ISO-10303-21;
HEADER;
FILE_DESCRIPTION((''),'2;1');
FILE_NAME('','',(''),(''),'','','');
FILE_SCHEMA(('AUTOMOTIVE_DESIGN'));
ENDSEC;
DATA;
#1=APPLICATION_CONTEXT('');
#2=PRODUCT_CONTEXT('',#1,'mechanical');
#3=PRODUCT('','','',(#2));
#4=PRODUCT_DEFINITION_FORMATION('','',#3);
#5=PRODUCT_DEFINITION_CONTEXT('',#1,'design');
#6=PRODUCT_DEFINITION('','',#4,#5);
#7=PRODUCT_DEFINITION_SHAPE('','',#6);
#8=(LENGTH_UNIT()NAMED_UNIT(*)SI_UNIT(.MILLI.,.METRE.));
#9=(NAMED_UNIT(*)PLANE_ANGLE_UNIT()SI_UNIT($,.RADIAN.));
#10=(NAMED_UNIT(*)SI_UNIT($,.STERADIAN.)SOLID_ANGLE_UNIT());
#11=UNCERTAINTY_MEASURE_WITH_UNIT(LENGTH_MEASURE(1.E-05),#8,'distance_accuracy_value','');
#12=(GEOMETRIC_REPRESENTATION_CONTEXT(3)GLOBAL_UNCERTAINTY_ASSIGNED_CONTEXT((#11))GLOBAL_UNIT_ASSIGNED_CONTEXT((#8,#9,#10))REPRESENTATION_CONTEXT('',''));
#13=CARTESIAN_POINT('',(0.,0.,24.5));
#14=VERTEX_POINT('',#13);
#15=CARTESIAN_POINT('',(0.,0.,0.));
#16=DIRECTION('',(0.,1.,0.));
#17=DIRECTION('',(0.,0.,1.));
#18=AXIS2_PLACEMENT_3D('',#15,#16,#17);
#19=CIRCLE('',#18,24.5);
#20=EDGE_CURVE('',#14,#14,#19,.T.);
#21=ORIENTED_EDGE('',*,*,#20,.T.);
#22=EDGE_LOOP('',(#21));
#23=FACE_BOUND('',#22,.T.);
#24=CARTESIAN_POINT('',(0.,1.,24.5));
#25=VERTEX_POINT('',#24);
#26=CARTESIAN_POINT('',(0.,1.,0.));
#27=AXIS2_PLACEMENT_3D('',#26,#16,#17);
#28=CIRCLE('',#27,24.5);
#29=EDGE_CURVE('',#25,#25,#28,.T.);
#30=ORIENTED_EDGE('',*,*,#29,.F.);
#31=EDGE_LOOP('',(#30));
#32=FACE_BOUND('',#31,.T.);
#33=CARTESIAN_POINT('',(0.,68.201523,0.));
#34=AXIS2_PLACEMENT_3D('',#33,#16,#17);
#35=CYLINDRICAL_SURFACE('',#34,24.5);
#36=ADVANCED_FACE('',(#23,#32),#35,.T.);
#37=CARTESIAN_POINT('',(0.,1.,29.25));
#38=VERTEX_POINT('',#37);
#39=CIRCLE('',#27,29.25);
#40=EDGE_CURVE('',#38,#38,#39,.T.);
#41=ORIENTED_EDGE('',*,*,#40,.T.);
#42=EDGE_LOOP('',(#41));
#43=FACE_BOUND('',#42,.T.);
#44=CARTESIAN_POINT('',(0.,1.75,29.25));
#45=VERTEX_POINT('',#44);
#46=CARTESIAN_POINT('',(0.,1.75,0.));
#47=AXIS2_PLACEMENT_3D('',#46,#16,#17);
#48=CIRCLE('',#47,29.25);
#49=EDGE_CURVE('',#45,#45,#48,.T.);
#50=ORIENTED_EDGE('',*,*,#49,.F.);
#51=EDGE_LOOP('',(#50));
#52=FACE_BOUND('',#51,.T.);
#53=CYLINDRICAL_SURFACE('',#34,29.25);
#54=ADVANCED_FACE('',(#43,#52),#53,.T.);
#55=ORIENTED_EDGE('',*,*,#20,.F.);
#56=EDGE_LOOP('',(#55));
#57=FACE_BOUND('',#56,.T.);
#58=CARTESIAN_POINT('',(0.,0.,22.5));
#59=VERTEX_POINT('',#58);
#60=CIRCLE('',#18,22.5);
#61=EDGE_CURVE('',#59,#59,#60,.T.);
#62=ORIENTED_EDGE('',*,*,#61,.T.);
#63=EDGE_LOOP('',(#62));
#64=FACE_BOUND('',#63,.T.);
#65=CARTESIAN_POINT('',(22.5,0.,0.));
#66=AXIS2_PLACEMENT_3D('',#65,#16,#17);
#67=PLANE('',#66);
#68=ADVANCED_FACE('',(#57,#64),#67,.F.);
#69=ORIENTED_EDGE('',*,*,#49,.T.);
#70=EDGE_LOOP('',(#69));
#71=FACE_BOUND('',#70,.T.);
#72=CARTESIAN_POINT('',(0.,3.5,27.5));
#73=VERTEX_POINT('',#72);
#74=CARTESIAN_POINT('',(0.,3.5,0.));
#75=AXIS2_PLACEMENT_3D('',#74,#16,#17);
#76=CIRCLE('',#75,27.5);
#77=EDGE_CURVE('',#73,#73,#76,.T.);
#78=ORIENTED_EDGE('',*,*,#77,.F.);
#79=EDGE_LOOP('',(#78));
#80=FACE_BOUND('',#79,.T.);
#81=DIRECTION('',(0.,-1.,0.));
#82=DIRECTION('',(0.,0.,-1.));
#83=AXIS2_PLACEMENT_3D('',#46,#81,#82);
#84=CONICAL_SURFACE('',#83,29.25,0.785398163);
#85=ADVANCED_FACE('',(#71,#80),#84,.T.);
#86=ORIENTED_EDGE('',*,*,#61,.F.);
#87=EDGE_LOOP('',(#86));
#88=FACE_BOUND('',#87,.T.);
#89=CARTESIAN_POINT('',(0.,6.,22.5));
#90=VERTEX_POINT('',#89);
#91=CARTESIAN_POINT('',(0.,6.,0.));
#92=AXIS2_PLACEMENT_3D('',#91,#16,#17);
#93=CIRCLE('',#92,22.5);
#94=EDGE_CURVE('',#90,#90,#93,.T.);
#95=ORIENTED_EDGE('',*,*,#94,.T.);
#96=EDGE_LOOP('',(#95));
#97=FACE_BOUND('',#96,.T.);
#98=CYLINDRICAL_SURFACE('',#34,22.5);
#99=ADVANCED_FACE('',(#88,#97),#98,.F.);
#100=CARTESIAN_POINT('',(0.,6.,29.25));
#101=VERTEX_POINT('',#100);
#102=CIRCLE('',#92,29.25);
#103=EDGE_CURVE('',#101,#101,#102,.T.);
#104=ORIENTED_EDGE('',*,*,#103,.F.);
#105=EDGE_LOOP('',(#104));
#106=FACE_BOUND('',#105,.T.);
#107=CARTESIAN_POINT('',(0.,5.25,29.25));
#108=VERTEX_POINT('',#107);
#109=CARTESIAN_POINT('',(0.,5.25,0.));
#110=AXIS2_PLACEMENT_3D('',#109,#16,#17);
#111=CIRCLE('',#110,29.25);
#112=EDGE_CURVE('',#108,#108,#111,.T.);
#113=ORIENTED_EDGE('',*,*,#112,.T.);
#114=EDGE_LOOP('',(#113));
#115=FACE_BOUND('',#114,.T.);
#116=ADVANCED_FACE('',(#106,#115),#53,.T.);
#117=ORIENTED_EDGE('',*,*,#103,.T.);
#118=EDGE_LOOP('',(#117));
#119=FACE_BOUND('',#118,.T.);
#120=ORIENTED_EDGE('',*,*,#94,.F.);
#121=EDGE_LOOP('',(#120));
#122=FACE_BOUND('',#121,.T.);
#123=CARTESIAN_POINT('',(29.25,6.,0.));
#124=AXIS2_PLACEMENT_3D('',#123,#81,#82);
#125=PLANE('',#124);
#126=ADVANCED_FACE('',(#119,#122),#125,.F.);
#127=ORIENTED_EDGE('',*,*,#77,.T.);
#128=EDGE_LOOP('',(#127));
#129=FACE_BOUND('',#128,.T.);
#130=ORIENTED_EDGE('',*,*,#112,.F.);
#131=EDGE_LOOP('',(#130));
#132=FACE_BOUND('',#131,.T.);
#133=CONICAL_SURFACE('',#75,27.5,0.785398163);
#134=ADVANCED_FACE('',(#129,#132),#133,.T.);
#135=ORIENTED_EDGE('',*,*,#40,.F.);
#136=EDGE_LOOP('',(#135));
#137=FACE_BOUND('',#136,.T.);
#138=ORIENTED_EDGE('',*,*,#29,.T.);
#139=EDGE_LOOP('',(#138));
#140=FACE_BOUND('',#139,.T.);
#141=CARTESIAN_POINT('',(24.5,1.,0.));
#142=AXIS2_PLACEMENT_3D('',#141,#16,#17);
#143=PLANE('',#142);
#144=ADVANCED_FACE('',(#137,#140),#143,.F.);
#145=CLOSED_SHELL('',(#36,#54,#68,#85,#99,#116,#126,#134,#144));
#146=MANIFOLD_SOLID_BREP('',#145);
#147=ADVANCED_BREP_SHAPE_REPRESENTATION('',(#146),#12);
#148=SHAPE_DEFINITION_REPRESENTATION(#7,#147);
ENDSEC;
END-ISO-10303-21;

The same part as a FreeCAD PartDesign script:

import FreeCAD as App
import Part
import Sketcher
Q = App.Units.Quantity

doc = App.newDocument("Part")
params = doc.addObject("Spreadsheet::Sheet", "Params")
for row, (alias, value) in enumerate([
    ("sketch1_width", "2 mm"),
    ("sketch1_height", "1 mm"),
    ("sketch1_height2", "6 mm"),
    ("sketch1_width2", "4.75 mm"),
    ("revolution_angle", "360 deg"),
], start=1):
    params.set(f"A{row}", alias)
    params.set(f"B{row}", "=" + value)
    params.setAlias(f"B{row}", alias)

body = doc.addObject("PartDesign::Body", "Body")

sketch1 = body.newObject("Sketcher::SketchObject", "Sketch")
sketch1.AttachmentSupport = (doc.getObject("XY_Plane"), [""])
sketch1.MapMode = "FlatFace"
sketch1.addGeometry([
    Part.LineSegment(App.Vector(22.5, 0, 0), App.Vector(24.5, 0, 0)),
    Part.LineSegment(App.Vector(24.5, 0, 0), App.Vector(24.5, 1, 0)),
    Part.LineSegment(App.Vector(24.5, 1, 0), App.Vector(29.2, 1, 0)),
    Part.LineSegment(App.Vector(29.2, 1, 0), App.Vector(29.2, 1.8, 0)),
    Part.LineSegment(App.Vector(29.2, 1.8, 0), App.Vector(27.5, 3.5, 0)),
    Part.LineSegment(App.Vector(27.5, 3.5, 0), App.Vector(29.2, 5.2, 0)),
    Part.LineSegment(App.Vector(29.2, 5.2, 0), App.Vector(29.2, 6, 0)),
    Part.LineSegment(App.Vector(29.2, 6, 0), App.Vector(22.5, 6, 0)),
    Part.LineSegment(App.Vector(22.5, 6, 0), App.Vector(22.5, 0, 0)),
], False)
sketch1.addConstraint([
    Sketcher.Constraint("Coincident", 0, 2, 1, 1),
    Sketcher.Constraint("Coincident", 1, 2, 2, 1),
    Sketcher.Constraint("Coincident", 2, 2, 3, 1),
    Sketcher.Constraint("Coincident", 3, 2, 4, 1),
    Sketcher.Constraint("Coincident", 4, 2, 5, 1),
    Sketcher.Constraint("Coincident", 5, 2, 6, 1),
    Sketcher.Constraint("Coincident", 6, 2, 7, 1),
    Sketcher.Constraint("Coincident", 7, 2, 8, 1),
    Sketcher.Constraint("Coincident", 8, 2, 0, 1),
    Sketcher.Constraint("Horizontal", 0),
    Sketcher.Constraint("Vertical", 1),
    Sketcher.Constraint("Horizontal", 2),
    Sketcher.Constraint("Vertical", 3),
    Sketcher.Constraint("Vertical", 6),
    Sketcher.Constraint("Horizontal", 7),
    Sketcher.Constraint("Vertical", 8),
    Sketcher.Constraint("PointOnObject", 0, 2, -1),
    Sketcher.Constraint("Perpendicular", 4, 5),
    Sketcher.Constraint("Vertical", 3, 2, 5, 2),
    Sketcher.Constraint("Equal", 3, 6),
    Sketcher.Constraint("Equal", 4, 5),
    Sketcher.Constraint("DistanceX", 0, 1, 0, 2, Q("2 mm")),
    Sketcher.Constraint("DistanceY", 1, 1, 1, 2, Q("1 mm")),
    Sketcher.Constraint("DistanceY", 8, 2, 8, 1, Q("6 mm")),
    Sketcher.Constraint("DistanceX", 1, 2, 4, 2, Q("3 mm")),
    Sketcher.Constraint("DistanceX", 2, 1, 2, 2, Q("4.75 mm")),
    Sketcher.Constraint("DistanceX", -1, 1, 0, 2, Q("24.5 mm")),
])
sketch1.setExpression("Constraints[21]", "Params.sketch1_width")
sketch1.setExpression("Constraints[22]", "Params.sketch1_height")
sketch1.setExpression("Constraints[23]", "Params.sketch1_height2")
sketch1.setExpression("Constraints[25]", "Params.sketch1_width2")
revolution = body.newObject("PartDesign::Revolution", "Revolution")
revolution.Profile = sketch1
revolution.ReferenceAxis = (sketch1, ["V_Axis"])
revolution.setExpression("Angle", "Params.revolution_angle")

doc.recompute()
